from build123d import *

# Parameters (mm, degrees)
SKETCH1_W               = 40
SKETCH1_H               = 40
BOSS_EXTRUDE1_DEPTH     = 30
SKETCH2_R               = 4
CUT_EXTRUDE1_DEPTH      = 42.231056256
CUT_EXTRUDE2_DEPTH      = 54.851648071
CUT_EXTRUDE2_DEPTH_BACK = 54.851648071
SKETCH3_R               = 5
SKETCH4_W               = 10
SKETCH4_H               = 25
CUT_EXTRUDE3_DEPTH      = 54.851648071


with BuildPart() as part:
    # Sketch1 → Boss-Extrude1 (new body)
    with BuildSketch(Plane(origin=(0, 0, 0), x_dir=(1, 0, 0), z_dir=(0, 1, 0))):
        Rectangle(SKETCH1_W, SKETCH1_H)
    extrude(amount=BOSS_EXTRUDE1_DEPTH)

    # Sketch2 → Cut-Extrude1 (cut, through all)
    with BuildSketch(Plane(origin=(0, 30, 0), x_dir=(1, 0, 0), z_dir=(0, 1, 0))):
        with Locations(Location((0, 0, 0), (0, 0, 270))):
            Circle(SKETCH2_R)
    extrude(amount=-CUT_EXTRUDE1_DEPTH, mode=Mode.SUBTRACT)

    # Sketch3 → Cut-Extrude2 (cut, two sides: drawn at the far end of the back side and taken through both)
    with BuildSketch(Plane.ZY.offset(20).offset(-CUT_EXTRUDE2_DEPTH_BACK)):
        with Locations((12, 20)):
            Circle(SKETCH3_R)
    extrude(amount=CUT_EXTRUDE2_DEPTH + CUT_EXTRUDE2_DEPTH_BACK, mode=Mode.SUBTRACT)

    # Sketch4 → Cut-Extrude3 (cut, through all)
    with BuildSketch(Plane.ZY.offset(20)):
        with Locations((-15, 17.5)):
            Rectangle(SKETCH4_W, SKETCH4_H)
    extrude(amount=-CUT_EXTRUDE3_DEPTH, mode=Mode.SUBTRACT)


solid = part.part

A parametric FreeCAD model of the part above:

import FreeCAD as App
import Part
import Sketcher

V = App.Vector
Q = App.Units.Quantity


def add_polygon(sketch, points):
    """Adds a closed chain of lines whose ends are joined by coincident constraints."""
    first, n = sketch.GeometryCount, len(points)
    for a, b in zip(points, points[1:] + points[:1]):
        sketch.addGeometry(Part.LineSegment(App.Vector(*a, 0), App.Vector(*b, 0)), False)
    for i in range(n):
        sketch.addConstraint(Sketcher.Constraint("Coincident", first + i, 2, first + (i + 1) % n, 1))

doc = App.newDocument("Part")
body = doc.addObject("PartDesign::Body", "Body")

sketch1 = doc.addObject("Sketcher::SketchObject", "Sketch")
body.addObject(sketch1)
sketch1.AttachmentSupport = (doc.XZ_Plane, [""])
sketch1.MapMode = "FlatFace"
add_polygon(sketch1, [(-20, -20), (-20, 20), (20, 20), (20, -20)])
sketch1.addConstraint([
    Sketcher.Constraint("Vertical", 0),
    Sketcher.Constraint("Horizontal", 1),
    Sketcher.Constraint("Vertical", 2),
    Sketcher.Constraint("Horizontal", 3),
    Sketcher.Constraint("Symmetric", 0, 2, 2, 2, -1, 1),
    Sketcher.Constraint("Equal", 3, 0),
    Sketcher.Constraint("DistanceX", 1, 1, 1, 2, Q("40 mm")),
])
pad1 = doc.addObject("PartDesign::Pad", "Pad")
body.addObject(pad1)
pad1.Profile = sketch1
pad1.Length = 30
pad1.Reversed = True

sketch2 = doc.addObject("Sketcher::SketchObject", "Sketch001")
body.addObject(sketch2)
sketch2.AttachmentSupport = (doc.XZ_Plane, [""])
sketch2.MapMode = "FlatFace"
sketch2.AttachmentOffset = App.Placement(V(0, 0, -30), App.Rotation())
sketch2.addGeometry(Part.Circle(V(0, 0, 0), V(0, 0, 1), 4), False)
sketch2.addConstraint([
    Sketcher.Constraint("Coincident", 0, 3, -1, 1),
    Sketcher.Constraint("Diameter", 0, Q("8 mm")),
])
pocket1 = doc.addObject("PartDesign::Pocket", "Pocket")
body.addObject(pocket1)
pocket1.Profile = sketch2
pocket1.Type = "ThroughAll"
pocket1.Reversed = True

sketch3 = doc.addObject("Sketcher::SketchObject", "Sketch002")
body.addObject(sketch3)
sketch3.AttachmentSupport = (doc.YZ_Plane, [""])
sketch3.MapMode = "FlatFace"
sketch3.AttachmentOffset = App.Placement(V(0, 0, -20), App.Rotation())
sketch3.addGeometry(Part.Circle(V(20, 12, 0), V(0, 0, 1), 5), False)
sketch3.addConstraint([
    Sketcher.Constraint("Diameter", 0, Q("10 mm")),
    Sketcher.Constraint("DistanceX", -1, 1, 0, 3, Q("20 mm")),
    Sketcher.Constraint("DistanceY", -1, 1, 0, 3, Q("12 mm")),
])
pocket2 = doc.addObject("PartDesign::Pocket", "Pocket001")
body.addObject(pocket2)
pocket2.Profile = sketch3
pocket2.Type = "ThroughAll"
pocket2.Midplane = True

sketch4 = doc.addObject("Sketcher::SketchObject", "Sketch003")
body.addObject(sketch4)
sketch4.AttachmentSupport = (doc.YZ_Plane, [""])
sketch4.MapMode = "FlatFace"
sketch4.AttachmentOffset = App.Placement(V(0, 0, -20), App.Rotation())
add_polygon(sketch4, [(30, -20), (5, -20), (5, -10), (30, -10)])
sketch4.addConstraint([
    Sketcher.Constraint("Horizontal", 0),
    Sketcher.Constraint("Vertical", 1),
    Sketcher.Constraint("Horizontal", 2),
    Sketcher.Constraint("Vertical", 3),
    Sketcher.Constraint("DistanceX", 0, 2, 0, 1, Q("25 mm")),
    Sketcher.Constraint("DistanceY", 1, 1, 1, 2, Q("10 mm")),
    Sketcher.Constraint("DistanceX", -1, 1, 0, 2, Q("5 mm")),
    Sketcher.Constraint("DistanceY", 0, 2, -1, 1, Q("20 mm")),
])
pocket3 = doc.addObject("PartDesign::Pocket", "Pocket002")
body.addObject(pocket3)
pocket3.Profile = sketch4
pocket3.Type = "ThroughAll"
pocket3.Reversed = True

doc.recompute()
